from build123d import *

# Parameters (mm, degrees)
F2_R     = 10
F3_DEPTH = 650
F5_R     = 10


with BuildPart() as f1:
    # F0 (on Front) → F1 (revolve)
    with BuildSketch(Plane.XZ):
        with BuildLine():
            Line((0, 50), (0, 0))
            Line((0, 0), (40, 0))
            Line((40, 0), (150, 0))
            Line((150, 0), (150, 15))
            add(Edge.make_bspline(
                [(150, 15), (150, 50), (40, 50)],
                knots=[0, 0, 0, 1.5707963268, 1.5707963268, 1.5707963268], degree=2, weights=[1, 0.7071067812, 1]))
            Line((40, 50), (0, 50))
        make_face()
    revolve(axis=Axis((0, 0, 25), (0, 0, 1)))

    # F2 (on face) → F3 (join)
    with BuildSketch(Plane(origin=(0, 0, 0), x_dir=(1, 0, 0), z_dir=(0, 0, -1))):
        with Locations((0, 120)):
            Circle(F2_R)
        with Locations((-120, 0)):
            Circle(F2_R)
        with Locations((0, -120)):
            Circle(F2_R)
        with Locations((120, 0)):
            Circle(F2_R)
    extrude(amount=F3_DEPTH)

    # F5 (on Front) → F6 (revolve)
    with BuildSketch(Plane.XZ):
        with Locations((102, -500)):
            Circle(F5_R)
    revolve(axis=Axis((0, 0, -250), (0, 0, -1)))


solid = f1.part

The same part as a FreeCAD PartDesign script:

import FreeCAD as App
import Part
import Sketcher
Q = App.Units.Quantity

doc = App.newDocument("Part")
body = doc.addObject("PartDesign::Body", "Body")

# Sketch on XZ plane
sketch1 = body.newObject("Sketcher::SketchObject", "Sketch")
sketch1.AttachmentSupport = (doc.getObject("XZ_Plane"), [""])
sketch1.MapMode = "FlatFace"
sketch1.addGeometry([
    Part.LineSegment(App.Vector(0, 50, 0), App.Vector(0, 0, 0)),  # 0
    Part.LineSegment(App.Vector(0, 0, 0), App.Vector(150, 0, 0)),  # 1
    Part.LineSegment(App.Vector(150, 0, 0), App.Vector(150, 15, 0)),  # 2
    Part.BSplineCurve([App.Vector(150, 15, 0), App.Vector(150, 50, 0), App.Vector(40, 50, 0)], [3, 3], [0, 1.570796327], False, 2, [1, 0.707106781, 1], False),  # 3
    Part.LineSegment(App.Vector(40, 50, 0), App.Vector(0, 50, 0)),  # 4
], False)
sketch1.addConstraint([
    Sketcher.Constraint("Block", 3),
    Sketcher.Constraint("Coincident", 0, 2, 1, 1),
    Sketcher.Constraint("Coincident", 1, 2, 2, 1),
    Sketcher.Constraint("Coincident", 2, 2, 3, 1),
    Sketcher.Constraint("Coincident", 3, 2, 4, 1),
    Sketcher.Constraint("Coincident", 4, 2, 0, 1),
    Sketcher.Constraint("Vertical", 0),
    Sketcher.Constraint("Horizontal", 1),
    Sketcher.Constraint("Vertical", 2),
    Sketcher.Constraint("Horizontal", 4),
    Sketcher.Constraint("Coincident", 0, 2, -1, 1),
])
revolution = body.newObject("PartDesign::Revolution", "Revolution")
revolution.Profile = sketch1
revolution.ReferenceAxis = (sketch1, ["V_Axis"])
revolution.Angle = 360

# Sketch on XY plane
sketch2 = body.newObject("Sketcher::SketchObject", "Sketch001")
sketch2.AttachmentSupport = (doc.getObject("XY_Plane"), [""])
sketch2.MapMode = "FlatFace"
sketch2.addGeometry([
    Part.Circle(App.Vector(0, -120, 0), App.Vector(0, 0, 1), 10),
    Part.Circle(App.Vector(-120, 0, 0), App.Vector(0, 0, 1), 10),
    Part.Circle(App.Vector(0, 120, 0), App.Vector(0, 0, 1), 10),
    Part.Circle(App.Vector(120, 0, 0), App.Vector(0, 0, 1), 10),
], False)
sketch2.addConstraint([
    Sketcher.Constraint("Equal", 0, 1),
    Sketcher.Constraint("Equal", 1, 2),
    Sketcher.Constraint("Equal", 2, 3),
    Sketcher.Constraint("Symmetric", 0, 3, 2, 3, -1, 1),
    Sketcher.Constraint("Symmetric", 1, 3, 3, 3, -1, 1),
    Sketcher.Constraint("PointOnObject", 0, 3, -2),
    Sketcher.Constraint("PointOnObject", 1, 3, -1),
    Sketcher.Constraint("Diameter", 0, Q("20 mm")),
    Sketcher.Constraint("DistanceY", 0, 3, -1, 1, Q("120 mm")),
    Sketcher.Constraint("DistanceX", 1, 3, -1, 1, Q("120 mm")),
])
pad1 = body.newObject("PartDesign::Pad", "Pad")
pad1.Profile = sketch2
pad1.Length = 650
pad1.Reversed = True

# Sketch on XZ plane
sketch3 = body.newObject("Sketcher::SketchObject", "Sketch002")
sketch3.AttachmentSupport = (doc.getObject("XZ_Plane"), [""])
sketch3.MapMode = "FlatFace"
sketch3.addGeometry(Part.Circle(App.Vector(102, -500, 0), App.Vector(0, 0, 1), 10), False)
sketch3.addConstraint([
    Sketcher.Constraint("Diameter", 0, Q("20 mm")),
    Sketcher.Constraint("DistanceX", -1, 1, 0, 3, Q("102 mm")),
    Sketcher.Constraint("DistanceY", 0, 3, -1, 1, Q("500 mm")),
])
revolution2 = body.newObject("PartDesign::Revolution", "Revolution001")
revolution2.Profile = sketch3
revolution2.ReferenceAxis = (sketch3, ["V_Axis"])
revolution2.Angle = 360

doc.recompute()
